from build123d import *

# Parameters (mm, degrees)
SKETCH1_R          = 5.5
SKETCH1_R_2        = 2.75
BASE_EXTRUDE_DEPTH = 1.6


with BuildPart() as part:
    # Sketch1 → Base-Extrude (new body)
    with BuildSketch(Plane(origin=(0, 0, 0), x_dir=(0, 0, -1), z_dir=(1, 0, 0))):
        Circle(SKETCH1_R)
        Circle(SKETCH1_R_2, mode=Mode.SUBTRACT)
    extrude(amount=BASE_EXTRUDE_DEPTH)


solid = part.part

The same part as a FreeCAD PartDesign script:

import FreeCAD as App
import Part
import Sketcher
from FreeCAD import Vector
Q = App.Units.Quantity

doc = App.newDocument("Part")
body = doc.addObject("PartDesign::Body", "Body")

# Sketch on YZ plane
sketch1 = body.newObject("Sketcher::SketchObject", "Sketch")
sketch1.AttachmentSupport = (doc.getObject("YZ_Plane"), [""])
sketch1.MapMode = "FlatFace"
sketch1.addGeometry([
    Part.Circle(Vector(0, 0, 0), Vector(0, 0, 1), 5.5),
    Part.Circle(Vector(0, 0, 0), Vector(0, 0, 1), 2.8),
], False)
sketch1.addConstraint([
    Sketcher.Constraint("Coincident", 0, 3, -1, 1),
    Sketcher.Constraint("Coincident", 1, 3, -1, 1),
    Sketcher.Constraint("Diameter", 0, Q("11 mm")),
    Sketcher.Constraint("Diameter", 1, Q("5.5 mm")),
])
pad1 = body.newObject("PartDesign::Pad", "Pad")
pad1.Profile = sketch1
pad1.Length = 1.6

doc.recompute()
